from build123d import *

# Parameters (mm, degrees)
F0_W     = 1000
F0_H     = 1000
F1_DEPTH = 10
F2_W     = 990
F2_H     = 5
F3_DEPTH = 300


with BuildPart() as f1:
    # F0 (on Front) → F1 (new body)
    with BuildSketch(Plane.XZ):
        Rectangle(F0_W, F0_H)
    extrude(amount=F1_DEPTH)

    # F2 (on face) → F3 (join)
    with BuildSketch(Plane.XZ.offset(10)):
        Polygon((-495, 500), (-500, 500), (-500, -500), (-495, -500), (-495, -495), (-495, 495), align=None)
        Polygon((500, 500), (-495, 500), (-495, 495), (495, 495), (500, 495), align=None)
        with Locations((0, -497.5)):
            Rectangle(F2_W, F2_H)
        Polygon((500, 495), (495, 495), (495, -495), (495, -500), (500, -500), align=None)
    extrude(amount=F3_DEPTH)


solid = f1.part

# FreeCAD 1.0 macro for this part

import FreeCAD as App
import Part
import Sketcher

V = App.Vector

doc = App.newDocument("Part")
body = doc.addObject("PartDesign::Body", "Body")

# Sketch on XZ plane
sketch1 = body.newObject("Sketcher::SketchObject", "Sketch")
sketch1.AttachmentSupport = (doc.getObject("XZ_Plane"), [""])
sketch1.MapMode = "FlatFace"
sketch1.addGeometry(Part.LineSegment(V(-500, 500, 0), V(-500, -500, 0)), False)
sketch1.addGeometry(Part.LineSegment(V(-500, -500, 0), V(500, -500, 0)), False)
sketch1.addGeometry(Part.LineSegment(V(500, -500, 0), V(500, 500, 0)), False)
sketch1.addGeometry(Part.LineSegment(V(500, 500, 0), V(-500, 500, 0)), False)
sketch1.addConstraint(Sketcher.Constraint("Coincident", 0, 2, 1, 1))
sketch1.addConstraint(Sketcher.Constraint("Coincident", 1, 2, 2, 1))
sketch1.addConstraint(Sketcher.Constraint("Coincident", 2, 2, 3, 1))
sketch1.addConstraint(Sketcher.Constraint("Coincident", 3, 2, 0, 1))
sketch1.addConstraint(Sketcher.Constraint("Vertical", 0))
sketch1.addConstraint(Sketcher.Constraint("Horizontal", 1))
sketch1.addConstraint(Sketcher.Constraint("Vertical", 2))
sketch1.addConstraint(Sketcher.Constraint("Horizontal", 3))
sketch1.addConstraint(Sketcher.Constraint("Symmetric", 0, 2, 2, 2, -1, 1))
sketch1.addConstraint(Sketcher.Constraint("Equal", 3, 0))
sketch1.addConstraint(Sketcher.Constraint("DistanceX", 1, 1, 1, 2, 1000.0))
pad1 = body.newObject("PartDesign::Pad", "Pad")
pad1.Profile = sketch1
pad1.Length = 10

# Sketch on XZ plane
sketch2 = body.newObject("Sketcher::SketchObject", "Sketch001")
sketch2.AttachmentSupport = (doc.getObject("XZ_Plane"), [""])
sketch2.MapMode = "FlatFace"
sketch2.AttachmentOffset = App.Placement(V(0, 0, 10), App.Rotation())
sketch2.addGeometry(Part.LineSegment(V(-500, 500, 0), V(-500, -500, 0)), False)
sketch2.addGeometry(Part.LineSegment(V(-500, -500, 0), V(500, -500, 0)), False)
sketch2.addGeometry(Part.LineSegment(V(500, -500, 0), V(500, 500, 0)), False)
sketch2.addGeometry(Part.LineSegment(V(500, 500, 0), V(-500, 500, 0)), False)
sketch2.addGeometry(Part.LineSegment(V(495, -495, 0), V(-495, -495, 0)), False)
sketch2.addGeometry(Part.LineSegment(V(-495, -495, 0), V(-495, 495, 0)), False)
sketch2.addGeometry(Part.LineSegment(V(-495, 495, 0), V(495, 495, 0)), False)
sketch2.addGeometry(Part.LineSegment(V(495, 495, 0), V(495, -495, 0)), False)
sketch2.addConstraint(Sketcher.Constraint("Coincident", 0, 2, 1, 1))
sketch2.addConstraint(Sketcher.Constraint("Coincident", 1, 2, 2, 1))
sketch2.addConstraint(Sketcher.Constraint("Coincident", 2, 2, 3, 1))
sketch2.addConstraint(Sketcher.Constraint("Coincident", 3, 2, 0, 1))
sketch2.addConstraint(Sketcher.Constraint("Coincident", 4, 2, 5, 1))
sketch2.addConstraint(Sketcher.Constraint("Coincident", 5, 2, 6, 1))
sketch2.addConstraint(Sketcher.Constraint("Coincident", 6, 2, 7, 1))
sketch2.addConstraint(Sketcher.Constraint("Coincident", 7, 2, 4, 1))
sketch2.addConstraint(Sketcher.Constraint("Vertical", 0))
sketch2.addConstraint(Sketcher.Constraint("Horizontal", 1))
sketch2.addConstraint(Sketcher.Constraint("Vertical", 2))
sketch2.addConstraint(Sketcher.Constraint("Horizontal", 3))
sketch2.addConstraint(Sketcher.Constraint("Horizontal", 4))
sketch2.addConstraint(Sketcher.Constraint("Vertical", 5))
sketch2.addConstraint(Sketcher.Constraint("Horizontal", 6))
sketch2.addConstraint(Sketcher.Constraint("Vertical", 7))
sketch2.addConstraint(Sketcher.Constraint("Symmetric", 0, 2, 2, 2, -1, 1))
sketch2.addConstraint(Sketcher.Constraint("Symmetric", 4, 2, 6, 2, -1, 1))
sketch2.addConstraint(Sketcher.Constraint("Equal", 3, 0))
sketch2.addConstraint(Sketcher.Constraint("Equal", 6, 5))
sketch2.addConstraint(Sketcher.Constraint("DistanceX", 1, 1, 1, 2, 1000.0))
sketch2.addConstraint(Sketcher.Constraint("DistanceX", 4, 2, 4, 1, 990.0))
pad2 = body.newObject("PartDesign::Pad", "Pad001")
pad2.Profile = sketch2
pad2.Length = 300

doc.recompute()
